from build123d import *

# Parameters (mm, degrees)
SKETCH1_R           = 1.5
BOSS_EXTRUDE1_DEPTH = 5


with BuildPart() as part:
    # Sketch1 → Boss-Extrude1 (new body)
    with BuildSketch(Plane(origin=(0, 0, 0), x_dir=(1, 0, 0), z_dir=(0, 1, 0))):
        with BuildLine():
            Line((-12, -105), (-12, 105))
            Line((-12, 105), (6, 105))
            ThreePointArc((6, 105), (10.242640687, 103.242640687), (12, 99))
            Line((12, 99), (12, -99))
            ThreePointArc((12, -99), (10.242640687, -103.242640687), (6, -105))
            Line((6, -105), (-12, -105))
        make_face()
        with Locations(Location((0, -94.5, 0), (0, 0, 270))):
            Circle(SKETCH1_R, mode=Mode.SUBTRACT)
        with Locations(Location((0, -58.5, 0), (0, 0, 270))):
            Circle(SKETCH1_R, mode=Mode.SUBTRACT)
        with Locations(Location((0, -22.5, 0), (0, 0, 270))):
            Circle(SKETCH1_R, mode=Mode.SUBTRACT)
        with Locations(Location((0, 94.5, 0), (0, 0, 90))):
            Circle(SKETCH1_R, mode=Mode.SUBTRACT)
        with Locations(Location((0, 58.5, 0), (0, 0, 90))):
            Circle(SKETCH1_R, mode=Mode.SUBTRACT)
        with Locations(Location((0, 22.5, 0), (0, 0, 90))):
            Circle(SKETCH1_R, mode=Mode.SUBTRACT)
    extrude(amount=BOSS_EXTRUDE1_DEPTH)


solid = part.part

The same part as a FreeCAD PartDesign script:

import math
import FreeCAD as App
import Part
import Sketcher

V = App.Vector
Q = App.Units.Quantity

doc = App.newDocument("Part")
body = doc.addObject("PartDesign::Body", "Body")

sketch1 = body.newObject("Sketcher::SketchObject", "Sketch")
sketch1.AttachmentSupport = (doc.getObject("XZ_Plane"), [""])
sketch1.MapMode = "FlatFace"
sketch1.addGeometry(Part.LineSegment(V(-12, -105, 0), V(-12, 105, 0)), False)
sketch1.addGeometry(Part.LineSegment(V(-12, 105, 0), V(6, 105, 0)), False)
sketch1.addGeometry(Part.ArcOfCircle(Part.Circle(V(6, 99, 0), V(0, 0, 1), 6), math.radians(0), math.radians(90)), False)
sketch1.addGeometry(Part.LineSegment(V(12, 99, 0), V(12, -99, 0)), False)
sketch1.addGeometry(Part.ArcOfCircle(Part.Circle(V(6, -99, 0), V(0, 0, 1), 6), math.radians(-90), math.radians(0)), False)
sketch1.addGeometry(Part.LineSegment(V(6, -105, 0), V(-12, -105, 0)), False)
sketch1.addGeometry(Part.Circle(V(0, 94.5, 0), V(0, 0, 1), 1.5), False)
sketch1.addGeometry(Part.Circle(V(0, 58.5, 0), V(0, 0, 1), 1.5), False)
sketch1.addGeometry(Part.Circle(V(0, 22.5, 0), V(0, 0, 1), 1.5), False)
sketch1.addGeometry(Part.Circle(V(0, -22.5, 0), V(0, 0, 1), 1.5), False)
sketch1.addGeometry(Part.Circle(V(0, -58.5, 0), V(0, 0, 1), 1.5), False)
sketch1.addGeometry(Part.Circle(V(0, -94.5, 0), V(0, 0, 1), 1.5), False)
sketch1.addConstraint(Sketcher.Constraint("Coincident", 0, 2, 1, 1))
sketch1.addConstraint(Sketcher.Constraint("Tangent", 1, 2, 2, 2))
sketch1.addConstraint(Sketcher.Constraint("Tangent", 2, 1, 3, 1))
sketch1.addConstraint(Sketcher.Constraint("Tangent", 3, 2, 4, 2))
sketch1.addConstraint(Sketcher.Constraint("Tangent", 4, 1, 5, 1))
sketch1.addConstraint(Sketcher.Constraint("Coincident", 5, 2, 0, 1))
sketch1.addConstraint(Sketcher.Constraint("Vertical", 0))
sketch1.addConstraint(Sketcher.Constraint("Horizontal", 1))
sketch1.addConstraint(Sketcher.Constraint("Vertical", 3))
sketch1.addConstraint(Sketcher.Constraint("Horizontal", 5))
sketch1.addConstraint(Sketcher.Constraint("Equal", 2, 4))
sketch1.addConstraint(Sketcher.Constraint("Equal", 6, 7))
sketch1.addConstraint(Sketcher.Constraint("Equal", 7, 8))
sketch1.addConstraint(Sketcher.Constraint("Equal", 8, 9))
sketch1.addConstraint(Sketcher.Constraint("Equal", 9, 10))
sketch1.addConstraint(Sketcher.Constraint("Equal", 10, 11))
sketch1.addConstraint(Sketcher.Constraint("Symmetric", 8, 3, 9, 3, -1, 1))
sketch1.addConstraint(Sketcher.Constraint("Symmetric", 7, 3, 10, 3, -1, 1))
sketch1.addConstraint(Sketcher.Constraint("Symmetric", 6, 3, 11, 3, -1, 1))
sketch1.addConstraint(Sketcher.Constraint("PointOnObject", 6, 3, -2))
sketch1.addConstraint(Sketcher.Constraint("PointOnObject", 7, 3, -2))
sketch1.addConstraint(Sketcher.Constraint("PointOnObject", 8, 3, -2))
sketch1.addConstraint(Sketcher.Constraint("Diameter", 6, Q("3 mm")))
sketch1.addConstraint(Sketcher.Constraint("Radius", 2, Q("6 mm")))
sketch1.addConstraint(Sketcher.Constraint("DistanceX", 1, 1, 1, 2, Q("18 mm")))
sketch1.addConstraint(Sketcher.Constraint("DistanceY", 0, 1, 0, 2, Q("210 mm")))
sketch1.addConstraint(Sketcher.Constraint("DistanceX", -1, 1, 2, 3, Q("6 mm")))
sketch1.addConstraint(Sketcher.Constraint("DistanceY", -1, 1, 2, 3, Q("99 mm")))
sketch1.addConstraint(Sketcher.Constraint("DistanceY", 7, 3, 6, 3, Q("36 mm")))
sketch1.addConstraint(Sketcher.Constraint("DistanceY", 8, 3, 7, 3, Q("36 mm")))
sketch1.addConstraint(Sketcher.Constraint("DistanceY", 9, 3, 8, 3, Q("45 mm")))
pad1 = body.newObject("PartDesign::Pad", "Pad")
pad1.Profile = sketch1
pad1.Length = 5
pad1.Reversed = True

doc.recompute()
